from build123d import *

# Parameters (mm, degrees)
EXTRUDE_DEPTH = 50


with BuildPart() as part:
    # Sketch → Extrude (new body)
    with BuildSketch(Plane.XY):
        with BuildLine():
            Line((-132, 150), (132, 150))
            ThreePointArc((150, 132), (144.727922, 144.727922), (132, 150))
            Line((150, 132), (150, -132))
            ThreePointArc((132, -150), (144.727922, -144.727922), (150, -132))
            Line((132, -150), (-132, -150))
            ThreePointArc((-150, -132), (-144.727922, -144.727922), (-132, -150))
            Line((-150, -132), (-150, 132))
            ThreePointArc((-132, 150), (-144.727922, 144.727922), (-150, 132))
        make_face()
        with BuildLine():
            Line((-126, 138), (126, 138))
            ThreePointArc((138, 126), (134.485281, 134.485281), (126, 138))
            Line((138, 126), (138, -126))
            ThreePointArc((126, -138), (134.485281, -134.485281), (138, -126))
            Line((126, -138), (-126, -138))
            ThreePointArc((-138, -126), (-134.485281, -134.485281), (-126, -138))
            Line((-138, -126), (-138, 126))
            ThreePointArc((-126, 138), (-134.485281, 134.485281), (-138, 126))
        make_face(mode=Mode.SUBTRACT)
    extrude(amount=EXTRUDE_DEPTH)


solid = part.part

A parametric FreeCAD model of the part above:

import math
import FreeCAD as App
import Part
import Sketcher
Q = App.Units.Quantity

doc = App.newDocument("Part")
body = doc.addObject("PartDesign::Body", "Body")

sketch1 = body.newObject("Sketcher::SketchObject", "Sketch")
sketch1.AttachmentSupport = (doc.getObject("XY_Plane"), [""])
sketch1.MapMode = "FlatFace"
sketch1.addGeometry(Part.LineSegment(App.Vector(132, 150, 0), App.Vector(-132, 150, 0)), False)
sketch1.addGeometry(Part.ArcOfCircle(Part.Circle(App.Vector(-132, 132, 0), App.Vector(0, 0, 1), 18), math.radians(90), math.radians(180)), False)
sketch1.addGeometry(Part.LineSegment(App.Vector(-150, 132, 0), App.Vector(-150, -132, 0)), False)
sketch1.addGeometry(Part.ArcOfCircle(Part.Circle(App.Vector(-132, -132, 0), App.Vector(0, 0, 1), 18), math.radians(-180), math.radians(-90)), False)
sketch1.addGeometry(Part.LineSegment(App.Vector(-132, -150, 0), App.Vector(132, -150, 0)), False)
sketch1.addGeometry(Part.ArcOfCircle(Part.Circle(App.Vector(132, -132, 0), App.Vector(0, 0, 1), 18), math.radians(-90), math.radians(0)), False)
sketch1.addGeometry(Part.LineSegment(App.Vector(150, -132, 0), App.Vector(150, 132, 0)), False)
sketch1.addGeometry(Part.ArcOfCircle(Part.Circle(App.Vector(132, 132, 0), App.Vector(0, 0, 1), 18), math.radians(0), math.radians(90)), False)
sketch1.addGeometry(Part.LineSegment(App.Vector(-126, 138, 0), App.Vector(126, 138, 0)), False)
sketch1.addGeometry(Part.ArcOfCircle(Part.Circle(App.Vector(126, 126, 0), App.Vector(0, 0, 1), 12), math.radians(0), math.radians(90)), False)
sketch1.addGeometry(Part.LineSegment(App.Vector(138, 126, 0), App.Vector(138, -126, 0)), False)
sketch1.addGeometry(Part.ArcOfCircle(Part.Circle(App.Vector(126, -126, 0), App.Vector(0, 0, 1), 12), math.radians(-90), math.radians(0)), False)
sketch1.addGeometry(Part.LineSegment(App.Vector(126, -138, 0), App.Vector(-126, -138, 0)), False)
sketch1.addGeometry(Part.ArcOfCircle(Part.Circle(App.Vector(-126, -126, 0), App.Vector(0, 0, 1), 12), math.radians(-180), math.radians(-90)), False)
sketch1.addGeometry(Part.LineSegment(App.Vector(-138, -126, 0), App.Vector(-138, 126, 0)), False)
sketch1.addGeometry(Part.ArcOfCircle(Part.Circle(App.Vector(-126, 126, 0), App.Vector(0, 0, 1), 12), math.radians(90), math.radians(180)), False)
sketch1.addConstraint(Sketcher.Constraint("Tangent", 0, 2, 1, 1))
sketch1.addConstraint(Sketcher.Constraint("Tangent", 1, 2, 2, 1))
sketch1.addConstraint(Sketcher.Constraint("Tangent", 2, 2, 3, 1))
sketch1.addConstraint(Sketcher.Constraint("Tangent", 3, 2, 4, 1))
sketch1.addConstraint(Sketcher.Constraint("Tangent", 4, 2, 5, 1))
sketch1.addConstraint(Sketcher.Constraint("Tangent", 5, 2, 6, 1))
sketch1.addConstraint(Sketcher.Constraint("Tangent", 6, 2, 7, 1))
sketch1.addConstraint(Sketcher.Constraint("Tangent", 7, 2, 0, 1))
sketch1.addConstraint(Sketcher.Constraint("Tangent", 8, 2, 9, 2))
sketch1.addConstraint(Sketcher.Constraint("Tangent", 9, 1, 10, 1))
sketch1.addConstraint(Sketcher.Constraint("Tangent", 10, 2, 11, 2))
sketch1.addConstraint(Sketcher.Constraint("Tangent", 11, 1, 12, 1))
sketch1.addConstraint(Sketcher.Constraint("Tangent", 12, 2, 13, 2))
sketch1.addConstraint(Sketcher.Constraint("Tangent", 13, 1, 14, 1))
sketch1.addConstraint(Sketcher.Constraint("Tangent", 14, 2, 15, 2))
sketch1.addConstraint(Sketcher.Constraint("Tangent", 15, 1, 8, 1))
sketch1.addConstraint(Sketcher.Constraint("Horizontal", 0))
sketch1.addConstraint(Sketcher.Constraint("Vertical", 2))
sketch1.addConstraint(Sketcher.Constraint("Horizontal", 4))
sketch1.addConstraint(Sketcher.Constraint("Vertical", 6))
sketch1.addConstraint(Sketcher.Constraint("Horizontal", 8))
sketch1.addConstraint(Sketcher.Constraint("Vertical", 10))
sketch1.addConstraint(Sketcher.Constraint("Horizontal", 12))
sketch1.addConstraint(Sketcher.Constraint("Vertical", 14))
sketch1.addConstraint(Sketcher.Constraint("Equal", 1, 3))
sketch1.addConstraint(Sketcher.Constraint("Equal", 3, 5))
sketch1.addConstraint(Sketcher.Constraint("Equal", 5, 7))
sketch1.addConstraint(Sketcher.Constraint("Equal", 9, 11))
sketch1.addConstraint(Sketcher.Constraint("Equal", 11, 13))
sketch1.addConstraint(Sketcher.Constraint("Equal", 13, 15))
sketch1.addConstraint(Sketcher.Constraint("Symmetric", 1, 3, 5, 3, -1, 1))
sketch1.addConstraint(Sketcher.Constraint("Symmetric", 9, 3, 13, 3, -1, 1))
sketch1.addConstraint(Sketcher.Constraint("Equal", 4, 2))
sketch1.addConstraint(Sketcher.Constraint("Equal", 12, 10))
sketch1.addConstraint(Sketcher.Constraint("Radius", 1, Q("18 mm")))
sketch1.addConstraint(Sketcher.Constraint("Radius", 9, Q("12.000001 mm")))
sketch1.addConstraint(Sketcher.Constraint("DistanceX", 0, 2, 0, 1, Q("264 mm")))
sketch1.addConstraint(Sketcher.Constraint("DistanceX", 8, 1, 8, 2, Q("252 mm")))
pad1 = body.newObject("PartDesign::Pad", "Pad")
pad1.Profile = sketch1
pad1.Length = 50

doc.recompute()
